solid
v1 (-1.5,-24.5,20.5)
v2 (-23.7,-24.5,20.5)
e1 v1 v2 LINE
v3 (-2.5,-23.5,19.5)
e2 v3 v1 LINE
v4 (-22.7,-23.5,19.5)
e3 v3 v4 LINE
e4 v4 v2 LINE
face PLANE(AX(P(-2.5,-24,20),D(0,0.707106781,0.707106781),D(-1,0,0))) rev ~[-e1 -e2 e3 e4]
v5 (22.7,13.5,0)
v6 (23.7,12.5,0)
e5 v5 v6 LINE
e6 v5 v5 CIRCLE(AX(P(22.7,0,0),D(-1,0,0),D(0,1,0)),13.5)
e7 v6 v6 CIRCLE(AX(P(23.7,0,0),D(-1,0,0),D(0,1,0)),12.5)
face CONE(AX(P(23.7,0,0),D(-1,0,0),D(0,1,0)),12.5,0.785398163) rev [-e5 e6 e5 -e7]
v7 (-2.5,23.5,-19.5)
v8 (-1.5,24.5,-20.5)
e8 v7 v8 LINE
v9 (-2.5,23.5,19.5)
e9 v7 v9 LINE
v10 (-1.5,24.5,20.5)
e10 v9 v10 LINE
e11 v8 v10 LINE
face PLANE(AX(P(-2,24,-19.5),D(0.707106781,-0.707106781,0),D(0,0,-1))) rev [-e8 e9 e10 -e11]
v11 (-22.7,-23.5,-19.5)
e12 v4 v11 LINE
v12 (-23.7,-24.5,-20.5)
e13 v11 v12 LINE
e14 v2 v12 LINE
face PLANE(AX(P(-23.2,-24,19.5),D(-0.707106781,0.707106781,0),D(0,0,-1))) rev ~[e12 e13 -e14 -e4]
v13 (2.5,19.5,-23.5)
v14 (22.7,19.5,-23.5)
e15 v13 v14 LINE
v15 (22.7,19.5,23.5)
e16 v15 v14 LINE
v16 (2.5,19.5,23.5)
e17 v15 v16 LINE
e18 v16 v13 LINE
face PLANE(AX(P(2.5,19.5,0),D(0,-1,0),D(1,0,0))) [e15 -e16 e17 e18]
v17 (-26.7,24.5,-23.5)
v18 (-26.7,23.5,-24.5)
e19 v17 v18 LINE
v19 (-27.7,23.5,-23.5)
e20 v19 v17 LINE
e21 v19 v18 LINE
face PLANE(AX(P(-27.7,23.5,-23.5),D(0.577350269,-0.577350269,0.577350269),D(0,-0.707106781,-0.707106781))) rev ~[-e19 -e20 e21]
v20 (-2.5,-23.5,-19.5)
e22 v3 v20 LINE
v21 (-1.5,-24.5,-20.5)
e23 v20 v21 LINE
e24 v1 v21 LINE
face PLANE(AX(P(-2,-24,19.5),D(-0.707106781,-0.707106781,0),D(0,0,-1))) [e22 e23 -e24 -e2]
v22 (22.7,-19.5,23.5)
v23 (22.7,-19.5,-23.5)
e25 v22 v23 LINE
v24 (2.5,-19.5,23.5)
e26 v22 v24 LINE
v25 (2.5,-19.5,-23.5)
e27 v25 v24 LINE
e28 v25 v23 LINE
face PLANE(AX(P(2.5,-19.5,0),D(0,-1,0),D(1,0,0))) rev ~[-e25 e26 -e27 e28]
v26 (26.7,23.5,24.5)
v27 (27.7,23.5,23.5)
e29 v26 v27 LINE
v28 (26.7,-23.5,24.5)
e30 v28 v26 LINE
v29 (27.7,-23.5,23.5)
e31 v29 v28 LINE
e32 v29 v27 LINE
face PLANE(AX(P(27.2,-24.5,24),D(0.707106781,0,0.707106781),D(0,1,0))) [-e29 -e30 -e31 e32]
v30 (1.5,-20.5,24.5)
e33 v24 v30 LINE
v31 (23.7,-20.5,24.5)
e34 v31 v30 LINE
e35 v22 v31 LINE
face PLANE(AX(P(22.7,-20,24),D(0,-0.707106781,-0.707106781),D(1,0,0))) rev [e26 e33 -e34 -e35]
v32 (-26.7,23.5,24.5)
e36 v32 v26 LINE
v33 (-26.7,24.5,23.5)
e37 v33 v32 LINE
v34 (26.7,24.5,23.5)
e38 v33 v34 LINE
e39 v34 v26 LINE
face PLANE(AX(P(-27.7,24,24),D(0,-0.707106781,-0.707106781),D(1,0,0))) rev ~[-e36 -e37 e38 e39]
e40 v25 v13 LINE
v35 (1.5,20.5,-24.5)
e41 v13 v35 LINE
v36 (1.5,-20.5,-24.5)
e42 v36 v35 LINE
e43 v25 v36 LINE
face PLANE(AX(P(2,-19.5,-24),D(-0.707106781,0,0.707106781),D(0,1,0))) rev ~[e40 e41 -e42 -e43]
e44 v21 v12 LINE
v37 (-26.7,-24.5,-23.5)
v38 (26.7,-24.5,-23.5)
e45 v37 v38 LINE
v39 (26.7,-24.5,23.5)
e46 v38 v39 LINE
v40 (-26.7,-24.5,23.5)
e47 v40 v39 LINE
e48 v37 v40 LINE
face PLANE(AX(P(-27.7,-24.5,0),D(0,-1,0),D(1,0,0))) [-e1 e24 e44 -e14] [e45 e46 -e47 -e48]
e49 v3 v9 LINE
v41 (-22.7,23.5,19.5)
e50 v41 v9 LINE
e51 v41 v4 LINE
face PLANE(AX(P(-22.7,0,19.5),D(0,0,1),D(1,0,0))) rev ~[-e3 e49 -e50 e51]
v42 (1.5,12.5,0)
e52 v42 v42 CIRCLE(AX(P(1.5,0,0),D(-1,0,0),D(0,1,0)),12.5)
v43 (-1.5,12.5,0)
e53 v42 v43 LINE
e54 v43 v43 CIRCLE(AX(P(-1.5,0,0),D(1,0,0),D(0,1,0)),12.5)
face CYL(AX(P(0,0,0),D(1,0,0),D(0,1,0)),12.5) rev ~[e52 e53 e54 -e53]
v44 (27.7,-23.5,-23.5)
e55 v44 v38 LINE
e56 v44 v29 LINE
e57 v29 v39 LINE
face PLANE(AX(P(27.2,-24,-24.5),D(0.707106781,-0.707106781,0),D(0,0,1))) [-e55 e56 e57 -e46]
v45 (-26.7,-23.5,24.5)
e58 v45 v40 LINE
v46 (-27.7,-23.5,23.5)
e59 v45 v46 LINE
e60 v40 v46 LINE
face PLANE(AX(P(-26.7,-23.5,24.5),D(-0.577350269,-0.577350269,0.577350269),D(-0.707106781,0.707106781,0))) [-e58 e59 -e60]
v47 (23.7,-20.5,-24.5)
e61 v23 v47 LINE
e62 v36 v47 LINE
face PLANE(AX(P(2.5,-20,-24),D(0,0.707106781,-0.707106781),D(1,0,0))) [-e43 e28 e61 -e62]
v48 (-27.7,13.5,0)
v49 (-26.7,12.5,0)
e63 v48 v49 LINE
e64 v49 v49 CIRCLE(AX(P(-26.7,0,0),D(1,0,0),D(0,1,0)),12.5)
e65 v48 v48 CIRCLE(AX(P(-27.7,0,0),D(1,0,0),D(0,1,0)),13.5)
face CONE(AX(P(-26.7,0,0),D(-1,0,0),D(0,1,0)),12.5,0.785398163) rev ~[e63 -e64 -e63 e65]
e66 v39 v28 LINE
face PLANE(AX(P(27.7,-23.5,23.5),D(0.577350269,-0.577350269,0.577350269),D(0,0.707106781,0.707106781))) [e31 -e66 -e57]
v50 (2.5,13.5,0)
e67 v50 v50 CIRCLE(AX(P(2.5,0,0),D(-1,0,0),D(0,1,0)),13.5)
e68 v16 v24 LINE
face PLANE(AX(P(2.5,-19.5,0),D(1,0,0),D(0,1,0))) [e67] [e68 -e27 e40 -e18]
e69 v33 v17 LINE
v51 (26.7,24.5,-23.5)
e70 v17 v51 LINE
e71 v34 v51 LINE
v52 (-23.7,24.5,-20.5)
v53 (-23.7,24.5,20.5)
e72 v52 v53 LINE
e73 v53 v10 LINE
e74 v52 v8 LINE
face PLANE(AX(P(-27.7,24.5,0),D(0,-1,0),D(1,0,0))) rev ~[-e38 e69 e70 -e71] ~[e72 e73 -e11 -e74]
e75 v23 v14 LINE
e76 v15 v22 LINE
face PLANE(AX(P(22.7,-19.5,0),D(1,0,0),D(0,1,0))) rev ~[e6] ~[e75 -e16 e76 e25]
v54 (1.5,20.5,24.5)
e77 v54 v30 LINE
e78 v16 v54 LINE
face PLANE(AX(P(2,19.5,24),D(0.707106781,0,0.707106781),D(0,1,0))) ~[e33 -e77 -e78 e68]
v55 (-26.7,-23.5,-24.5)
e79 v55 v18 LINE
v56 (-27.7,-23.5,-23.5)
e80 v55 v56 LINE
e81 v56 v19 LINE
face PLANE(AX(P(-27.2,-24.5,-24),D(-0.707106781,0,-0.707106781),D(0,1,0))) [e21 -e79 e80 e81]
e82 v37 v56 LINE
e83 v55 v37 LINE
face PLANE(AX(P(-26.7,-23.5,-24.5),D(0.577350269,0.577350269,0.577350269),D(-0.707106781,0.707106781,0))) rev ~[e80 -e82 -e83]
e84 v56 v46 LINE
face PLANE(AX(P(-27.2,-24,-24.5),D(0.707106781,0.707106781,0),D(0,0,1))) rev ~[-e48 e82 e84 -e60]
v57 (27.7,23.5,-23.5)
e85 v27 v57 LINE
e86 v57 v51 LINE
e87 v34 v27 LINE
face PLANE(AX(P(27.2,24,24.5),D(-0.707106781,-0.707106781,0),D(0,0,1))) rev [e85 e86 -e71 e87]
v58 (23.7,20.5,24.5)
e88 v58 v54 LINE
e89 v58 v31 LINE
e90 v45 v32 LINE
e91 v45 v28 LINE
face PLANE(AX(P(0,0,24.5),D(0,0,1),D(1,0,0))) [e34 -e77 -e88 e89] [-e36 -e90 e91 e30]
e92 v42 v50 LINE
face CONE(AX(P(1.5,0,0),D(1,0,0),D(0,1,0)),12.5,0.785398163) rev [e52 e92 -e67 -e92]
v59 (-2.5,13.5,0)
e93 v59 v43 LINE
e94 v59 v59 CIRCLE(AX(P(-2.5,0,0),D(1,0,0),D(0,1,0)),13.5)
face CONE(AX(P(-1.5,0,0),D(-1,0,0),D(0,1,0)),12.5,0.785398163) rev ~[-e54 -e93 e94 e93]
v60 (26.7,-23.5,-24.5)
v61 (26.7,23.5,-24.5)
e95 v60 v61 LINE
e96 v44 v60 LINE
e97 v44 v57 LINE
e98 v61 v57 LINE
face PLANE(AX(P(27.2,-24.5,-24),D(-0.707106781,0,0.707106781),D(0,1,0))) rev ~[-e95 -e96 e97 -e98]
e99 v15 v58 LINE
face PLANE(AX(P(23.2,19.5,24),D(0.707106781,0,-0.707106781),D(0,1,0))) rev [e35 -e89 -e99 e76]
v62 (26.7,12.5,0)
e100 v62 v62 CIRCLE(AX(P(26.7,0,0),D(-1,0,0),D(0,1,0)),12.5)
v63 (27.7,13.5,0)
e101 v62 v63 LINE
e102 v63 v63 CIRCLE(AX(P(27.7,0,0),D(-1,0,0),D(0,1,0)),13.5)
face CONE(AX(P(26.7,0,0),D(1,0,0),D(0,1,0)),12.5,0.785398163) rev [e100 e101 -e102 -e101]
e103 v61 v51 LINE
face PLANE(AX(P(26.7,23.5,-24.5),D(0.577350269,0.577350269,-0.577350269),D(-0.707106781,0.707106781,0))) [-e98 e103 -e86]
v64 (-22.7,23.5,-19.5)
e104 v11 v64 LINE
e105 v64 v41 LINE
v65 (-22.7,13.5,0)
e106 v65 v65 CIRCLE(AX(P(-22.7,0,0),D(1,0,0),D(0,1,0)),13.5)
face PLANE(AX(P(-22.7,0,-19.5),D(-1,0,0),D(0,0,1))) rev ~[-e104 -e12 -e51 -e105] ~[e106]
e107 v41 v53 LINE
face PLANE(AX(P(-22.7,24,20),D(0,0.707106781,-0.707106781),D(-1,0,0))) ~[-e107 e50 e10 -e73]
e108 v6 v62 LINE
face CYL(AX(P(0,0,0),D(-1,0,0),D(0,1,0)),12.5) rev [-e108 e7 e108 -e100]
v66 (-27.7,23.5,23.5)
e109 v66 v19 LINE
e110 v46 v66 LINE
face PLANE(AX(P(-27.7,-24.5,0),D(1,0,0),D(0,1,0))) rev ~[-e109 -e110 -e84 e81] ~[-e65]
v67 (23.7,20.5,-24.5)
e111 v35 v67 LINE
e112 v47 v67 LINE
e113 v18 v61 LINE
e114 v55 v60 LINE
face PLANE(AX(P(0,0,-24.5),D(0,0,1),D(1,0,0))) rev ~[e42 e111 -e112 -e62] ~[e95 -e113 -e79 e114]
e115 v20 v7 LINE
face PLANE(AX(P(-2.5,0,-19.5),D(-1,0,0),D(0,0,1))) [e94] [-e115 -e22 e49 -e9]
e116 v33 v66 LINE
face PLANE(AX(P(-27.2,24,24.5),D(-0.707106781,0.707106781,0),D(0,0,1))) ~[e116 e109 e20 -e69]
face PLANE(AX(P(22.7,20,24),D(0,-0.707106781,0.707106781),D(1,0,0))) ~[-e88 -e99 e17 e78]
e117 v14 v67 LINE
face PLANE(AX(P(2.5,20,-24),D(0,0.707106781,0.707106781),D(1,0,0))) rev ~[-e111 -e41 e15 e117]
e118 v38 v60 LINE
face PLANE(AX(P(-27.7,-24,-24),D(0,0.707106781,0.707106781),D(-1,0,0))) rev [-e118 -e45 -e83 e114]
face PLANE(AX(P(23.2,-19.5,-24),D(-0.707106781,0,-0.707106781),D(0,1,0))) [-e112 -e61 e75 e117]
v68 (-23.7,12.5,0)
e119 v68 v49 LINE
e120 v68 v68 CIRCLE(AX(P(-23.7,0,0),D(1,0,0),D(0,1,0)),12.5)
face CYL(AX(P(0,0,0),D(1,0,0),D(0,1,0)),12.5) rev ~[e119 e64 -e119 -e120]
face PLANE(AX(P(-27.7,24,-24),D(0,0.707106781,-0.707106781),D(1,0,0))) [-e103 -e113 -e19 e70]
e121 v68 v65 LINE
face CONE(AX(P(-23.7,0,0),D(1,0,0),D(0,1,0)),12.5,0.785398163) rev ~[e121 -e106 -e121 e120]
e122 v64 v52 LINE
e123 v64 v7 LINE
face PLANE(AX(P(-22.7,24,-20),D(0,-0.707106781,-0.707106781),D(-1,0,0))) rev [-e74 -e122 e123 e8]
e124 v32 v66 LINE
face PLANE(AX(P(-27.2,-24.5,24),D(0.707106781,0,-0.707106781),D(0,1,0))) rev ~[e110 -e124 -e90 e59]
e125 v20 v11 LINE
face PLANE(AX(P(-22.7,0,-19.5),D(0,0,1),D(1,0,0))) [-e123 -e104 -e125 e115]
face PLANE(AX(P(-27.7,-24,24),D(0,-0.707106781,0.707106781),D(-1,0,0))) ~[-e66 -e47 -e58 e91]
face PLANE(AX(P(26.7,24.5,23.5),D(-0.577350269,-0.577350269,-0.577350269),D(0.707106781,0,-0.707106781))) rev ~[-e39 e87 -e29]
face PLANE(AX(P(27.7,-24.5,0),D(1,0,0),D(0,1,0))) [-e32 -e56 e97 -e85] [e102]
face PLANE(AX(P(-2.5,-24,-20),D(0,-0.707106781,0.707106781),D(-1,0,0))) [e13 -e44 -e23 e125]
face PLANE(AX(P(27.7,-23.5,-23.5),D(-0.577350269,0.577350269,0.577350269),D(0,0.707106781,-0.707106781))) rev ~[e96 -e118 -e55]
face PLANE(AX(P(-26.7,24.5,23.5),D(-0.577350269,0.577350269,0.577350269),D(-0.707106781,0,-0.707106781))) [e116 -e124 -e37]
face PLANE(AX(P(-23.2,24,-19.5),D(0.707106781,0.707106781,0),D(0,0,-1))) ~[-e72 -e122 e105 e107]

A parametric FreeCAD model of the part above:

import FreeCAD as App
import Part
import Sketcher
Q = App.Units.Quantity


def edges_at(feature, points):
    """Names of the edges that pass closest to the given points."""
    edges = feature.Shape.Edges
    near = lambda p: min(range(len(edges)), key=lambda i: edges[i].distToShape(Part.Vertex(*p))[0])
    return sorted({f"Edge{near(p) + 1}" for p in points})

doc = App.newDocument("Part")
params = doc.addObject("Spreadsheet::Sheet", "Params")
for row, (alias, value) in enumerate([
    ("sketch1_height", "49 mm"),
    ("sketch1_width", "55.4 mm"),
    ("pad1_length", "49 mm"),
    ("sketch2_height", "39 mm"),
    ("sketch2_width", "20.2 mm"),
    ("sketch3_height", "39 mm"),
    ("sketch3_width", "20.2 mm"),
    ("sketch4_diameter", "25 mm"),
    ("chamfer_size", "1 mm"),
], start=1):
    params.set(f"A{row}", alias)
    params.set(f"B{row}", "=" + value)
    params.setAlias(f"B{row}", alias)

body = doc.addObject("PartDesign::Body", "Body")

# Sketch on XY plane
sketch1 = doc.addObject("Sketcher::SketchObject", "Sketch")
body.addObject(sketch1)
sketch1.AttachmentSupport = (doc.XY_Plane, [""])
sketch1.MapMode = "FlatFace"
sketch1.addGeometry(Part.LineSegment(App.Vector(-28, 24, 0), App.Vector(-28, -24, 0)), False)
sketch1.addGeometry(Part.LineSegment(App.Vector(-28, -24, 0), App.Vector(28, -24, 0)), False)
sketch1.addGeometry(Part.LineSegment(App.Vector(28, -24, 0), App.Vector(28, 24, 0)), False)
sketch1.addGeometry(Part.LineSegment(App.Vector(28, 24, 0), App.Vector(-28, 24, 0)), False)
sketch1.addConstraint(Sketcher.Constraint("Coincident", 0, 2, 1, 1))
sketch1.addConstraint(Sketcher.Constraint("Coincident", 1, 2, 2, 1))
sketch1.addConstraint(Sketcher.Constraint("Coincident", 2, 2, 3, 1))
sketch1.addConstraint(Sketcher.Constraint("Coincident", 3, 2, 0, 1))
sketch1.addConstraint(Sketcher.Constraint("Vertical", 0))
sketch1.addConstraint(Sketcher.Constraint("Horizontal", 1))
sketch1.addConstraint(Sketcher.Constraint("Vertical", 2))
sketch1.addConstraint(Sketcher.Constraint("Horizontal", 3))
sketch1.addConstraint(Sketcher.Constraint("Symmetric", 0, 2, 2, 2, -1, 1))
sketch1.addConstraint(Sketcher.Constraint("DistanceY", 0, 2, 0, 1, Q("49 mm")))
sketch1.addConstraint(Sketcher.Constraint("DistanceX", 1, 1, 1, 2, Q("55.4 mm")))
sketch1.setExpression("Constraints[9]", "Params.sketch1_height")
sketch1.setExpression("Constraints[10]", "Params.sketch1_width")
pad1 = doc.addObject("PartDesign::Pad", "Pad")
body.addObject(pad1)
pad1.Profile = sketch1
pad1.setExpression("Length", "Params.pad1_length")
pad1.Midplane = True

# Sketch on XY plane
sketch2 = doc.addObject("Sketcher::SketchObject", "Sketch001")
body.addObject(sketch2)
sketch2.AttachmentSupport = (doc.XY_Plane, [""])
sketch2.MapMode = "FlatFace"
sketch2.addGeometry(Part.LineSegment(App.Vector(2, 20, 0), App.Vector(2, -20, 0)), False)
sketch2.addGeometry(Part.LineSegment(App.Vector(2, -20, 0), App.Vector(23, -20, 0)), False)
sketch2.addGeometry(Part.LineSegment(App.Vector(23, -20, 0), App.Vector(23, 20, 0)), False)
sketch2.addGeometry(Part.LineSegment(App.Vector(23, 20, 0), App.Vector(2, 20, 0)), False)
sketch2.addConstraint(Sketcher.Constraint("Coincident", 0, 2, 1, 1))
sketch2.addConstraint(Sketcher.Constraint("Coincident", 1, 2, 2, 1))
sketch2.addConstraint(Sketcher.Constraint("Coincident", 2, 2, 3, 1))
sketch2.addConstraint(Sketcher.Constraint("Coincident", 3, 2, 0, 1))
sketch2.addConstraint(Sketcher.Constraint("Vertical", 0))
sketch2.addConstraint(Sketcher.Constraint("Horizontal", 1))
sketch2.addConstraint(Sketcher.Constraint("Vertical", 2))
sketch2.addConstraint(Sketcher.Constraint("Horizontal", 3))
sketch2.addConstraint(Sketcher.Constraint("DistanceY", 0, 2, 0, 1, Q("39 mm")))
sketch2.addConstraint(Sketcher.Constraint("DistanceX", 1, 1, 1, 2, Q("20.2 mm")))
sketch2.addConstraint(Sketcher.Constraint("DistanceX", -1, 1, 0, 2, Q("2.5 mm")))
sketch2.addConstraint(Sketcher.Constraint("DistanceY", 0, 2, -1, 1, Q("19.5 mm")))
sketch2.setExpression("Constraints[8]", "Params.sketch2_height")
sketch2.setExpression("Constraints[9]", "Params.sketch2_width")
pocket1 = doc.addObject("PartDesign::Pocket", "Pocket")
body.addObject(pocket1)
pocket1.Profile = sketch2
pocket1.Type = "ThroughAll"
pocket1.Midplane = True

# Sketch on XZ plane
sketch3 = doc.addObject("Sketcher::SketchObject", "Sketch002")
body.addObject(sketch3)
sketch3.AttachmentSupport = (doc.XZ_Plane, [""])
sketch3.MapMode = "FlatFace"
sketch3.addGeometry(Part.LineSegment(App.Vector(-23, 20, 0), App.Vector(-23, -20, 0)), False)
sketch3.addGeometry(Part.LineSegment(App.Vector(-23, -20, 0), App.Vector(-2, -20, 0)), False)
sketch3.addGeometry(Part.LineSegment(App.Vector(-2, -20, 0), App.Vector(-2, 20, 0)), False)
sketch3.addGeometry(Part.LineSegment(App.Vector(-2, 20, 0), App.Vector(-23, 20, 0)), False)
sketch3.addConstraint(Sketcher.Constraint("Coincident", 0, 2, 1, 1))
sketch3.addConstraint(Sketcher.Constraint("Coincident", 1, 2, 2, 1))
sketch3.addConstraint(Sketcher.Constraint("Coincident", 2, 2, 3, 1))
sketch3.addConstraint(Sketcher.Constraint("Coincident", 3, 2, 0, 1))
sketch3.addConstraint(Sketcher.Constraint("Vertical", 0))
sketch3.addConstraint(Sketcher.Constraint("Horizontal", 1))
sketch3.addConstraint(Sketcher.Constraint("Vertical", 2))
sketch3.addConstraint(Sketcher.Constraint("Horizontal", 3))
sketch3.addConstraint(Sketcher.Constraint("DistanceY", 0, 2, 0, 1, Q("39 mm")))
sketch3.addConstraint(Sketcher.Constraint("DistanceX", 1, 1, 1, 2, Q("20.2 mm")))
sketch3.addConstraint(Sketcher.Constraint("DistanceX", 0, 2, -1, 1, Q("22.7 mm")))
sketch3.addConstraint(Sketcher.Constraint("DistanceY", 0, 2, -1, 1, Q("19.5 mm")))
sketch3.setExpression("Constraints[8]", "Params.sketch3_height")
sketch3.setExpression("Constraints[9]", "Params.sketch3_width")
pocket2 = doc.addObject("PartDesign::Pocket", "Pocket001")
body.addObject(pocket2)
pocket2.Profile = sketch3
pocket2.Type = "ThroughAll"
pocket2.Midplane = True

# Sketch on YZ plane
sketch4 = doc.addObject("Sketcher::SketchObject", "Sketch003")
body.addObject(sketch4)
sketch4.AttachmentSupport = (doc.YZ_Plane, [""])
sketch4.MapMode = "FlatFace"
sketch4.addGeometry(Part.Circle(App.Vector(0, 0, 0), App.Vector(0, 0, 1), 12), False)
sketch4.addConstraint(Sketcher.Constraint("Coincident", 0, 3, -1, 1))
sketch4.addConstraint(Sketcher.Constraint("Diameter", 0, Q("25 mm")))
sketch4.setExpression("Constraints[1]", "Params.sketch4_diameter")
pocket3 = doc.addObject("PartDesign::Pocket", "Pocket002")
body.addObject(pocket3)
pocket3.Profile = sketch4
pocket3.Type = "ThroughAll"
pocket3.Midplane = True
doc.recompute()

chamfer = doc.addObject("PartDesign::Chamfer", "Chamfer")
body.addObject(chamfer)
chamfer.Base = (pocket3, edges_at(pocket3, [
    (-27.7, -24.5, 0),
    (0, -24.5, 24.5),
    (0, -24.5, -24.5),
    (27.7, -24.5, 0),
    (27.7, 0, 24.5),
    (-27.7, 0, 24.5),
    (0, 24.5, 24.5),
    (27.7, 24.5, 0),
    (27.7, 0, -24.5),
    (27.7, -12.5, 0),
    (22.7, -12.5, 0),
    (2.5, -12.5, 0),
    (2.5, 0, 24.5),
    (12.6, -19.5, 24.5),
    (22.7, 0, 24.5),
    (12.6, 19.5, 24.5),
    (-12.6, -24.5, 19.5),
    (-22.7, -24.5, 0),
    (-12.6, -24.5, -19.5),
    (-2.5, -24.5, 0),
    (-22.7, -12.5, 0),
    (-27.7, -12.5, 0),
    (-2.5, -12.5, 0),
    (0, 24.5, -24.5),
    (-27.7, 24.5, 0),
    (-22.7, 24.5, 0),
    (-2.5, 24.5, 0),
    (-12.6, 24.5, 19.5),
    (-12.6, 24.5, -19.5),
    (-27.7, 0, -24.5),
    (2.5, 0, -24.5),
    (12.6, -19.5, -24.5),
    (12.6, 19.5, -24.5),
    (22.7, 0, -24.5),
]))
chamfer.setExpression("Size", "Params.chamfer_size")

doc.recompute()
